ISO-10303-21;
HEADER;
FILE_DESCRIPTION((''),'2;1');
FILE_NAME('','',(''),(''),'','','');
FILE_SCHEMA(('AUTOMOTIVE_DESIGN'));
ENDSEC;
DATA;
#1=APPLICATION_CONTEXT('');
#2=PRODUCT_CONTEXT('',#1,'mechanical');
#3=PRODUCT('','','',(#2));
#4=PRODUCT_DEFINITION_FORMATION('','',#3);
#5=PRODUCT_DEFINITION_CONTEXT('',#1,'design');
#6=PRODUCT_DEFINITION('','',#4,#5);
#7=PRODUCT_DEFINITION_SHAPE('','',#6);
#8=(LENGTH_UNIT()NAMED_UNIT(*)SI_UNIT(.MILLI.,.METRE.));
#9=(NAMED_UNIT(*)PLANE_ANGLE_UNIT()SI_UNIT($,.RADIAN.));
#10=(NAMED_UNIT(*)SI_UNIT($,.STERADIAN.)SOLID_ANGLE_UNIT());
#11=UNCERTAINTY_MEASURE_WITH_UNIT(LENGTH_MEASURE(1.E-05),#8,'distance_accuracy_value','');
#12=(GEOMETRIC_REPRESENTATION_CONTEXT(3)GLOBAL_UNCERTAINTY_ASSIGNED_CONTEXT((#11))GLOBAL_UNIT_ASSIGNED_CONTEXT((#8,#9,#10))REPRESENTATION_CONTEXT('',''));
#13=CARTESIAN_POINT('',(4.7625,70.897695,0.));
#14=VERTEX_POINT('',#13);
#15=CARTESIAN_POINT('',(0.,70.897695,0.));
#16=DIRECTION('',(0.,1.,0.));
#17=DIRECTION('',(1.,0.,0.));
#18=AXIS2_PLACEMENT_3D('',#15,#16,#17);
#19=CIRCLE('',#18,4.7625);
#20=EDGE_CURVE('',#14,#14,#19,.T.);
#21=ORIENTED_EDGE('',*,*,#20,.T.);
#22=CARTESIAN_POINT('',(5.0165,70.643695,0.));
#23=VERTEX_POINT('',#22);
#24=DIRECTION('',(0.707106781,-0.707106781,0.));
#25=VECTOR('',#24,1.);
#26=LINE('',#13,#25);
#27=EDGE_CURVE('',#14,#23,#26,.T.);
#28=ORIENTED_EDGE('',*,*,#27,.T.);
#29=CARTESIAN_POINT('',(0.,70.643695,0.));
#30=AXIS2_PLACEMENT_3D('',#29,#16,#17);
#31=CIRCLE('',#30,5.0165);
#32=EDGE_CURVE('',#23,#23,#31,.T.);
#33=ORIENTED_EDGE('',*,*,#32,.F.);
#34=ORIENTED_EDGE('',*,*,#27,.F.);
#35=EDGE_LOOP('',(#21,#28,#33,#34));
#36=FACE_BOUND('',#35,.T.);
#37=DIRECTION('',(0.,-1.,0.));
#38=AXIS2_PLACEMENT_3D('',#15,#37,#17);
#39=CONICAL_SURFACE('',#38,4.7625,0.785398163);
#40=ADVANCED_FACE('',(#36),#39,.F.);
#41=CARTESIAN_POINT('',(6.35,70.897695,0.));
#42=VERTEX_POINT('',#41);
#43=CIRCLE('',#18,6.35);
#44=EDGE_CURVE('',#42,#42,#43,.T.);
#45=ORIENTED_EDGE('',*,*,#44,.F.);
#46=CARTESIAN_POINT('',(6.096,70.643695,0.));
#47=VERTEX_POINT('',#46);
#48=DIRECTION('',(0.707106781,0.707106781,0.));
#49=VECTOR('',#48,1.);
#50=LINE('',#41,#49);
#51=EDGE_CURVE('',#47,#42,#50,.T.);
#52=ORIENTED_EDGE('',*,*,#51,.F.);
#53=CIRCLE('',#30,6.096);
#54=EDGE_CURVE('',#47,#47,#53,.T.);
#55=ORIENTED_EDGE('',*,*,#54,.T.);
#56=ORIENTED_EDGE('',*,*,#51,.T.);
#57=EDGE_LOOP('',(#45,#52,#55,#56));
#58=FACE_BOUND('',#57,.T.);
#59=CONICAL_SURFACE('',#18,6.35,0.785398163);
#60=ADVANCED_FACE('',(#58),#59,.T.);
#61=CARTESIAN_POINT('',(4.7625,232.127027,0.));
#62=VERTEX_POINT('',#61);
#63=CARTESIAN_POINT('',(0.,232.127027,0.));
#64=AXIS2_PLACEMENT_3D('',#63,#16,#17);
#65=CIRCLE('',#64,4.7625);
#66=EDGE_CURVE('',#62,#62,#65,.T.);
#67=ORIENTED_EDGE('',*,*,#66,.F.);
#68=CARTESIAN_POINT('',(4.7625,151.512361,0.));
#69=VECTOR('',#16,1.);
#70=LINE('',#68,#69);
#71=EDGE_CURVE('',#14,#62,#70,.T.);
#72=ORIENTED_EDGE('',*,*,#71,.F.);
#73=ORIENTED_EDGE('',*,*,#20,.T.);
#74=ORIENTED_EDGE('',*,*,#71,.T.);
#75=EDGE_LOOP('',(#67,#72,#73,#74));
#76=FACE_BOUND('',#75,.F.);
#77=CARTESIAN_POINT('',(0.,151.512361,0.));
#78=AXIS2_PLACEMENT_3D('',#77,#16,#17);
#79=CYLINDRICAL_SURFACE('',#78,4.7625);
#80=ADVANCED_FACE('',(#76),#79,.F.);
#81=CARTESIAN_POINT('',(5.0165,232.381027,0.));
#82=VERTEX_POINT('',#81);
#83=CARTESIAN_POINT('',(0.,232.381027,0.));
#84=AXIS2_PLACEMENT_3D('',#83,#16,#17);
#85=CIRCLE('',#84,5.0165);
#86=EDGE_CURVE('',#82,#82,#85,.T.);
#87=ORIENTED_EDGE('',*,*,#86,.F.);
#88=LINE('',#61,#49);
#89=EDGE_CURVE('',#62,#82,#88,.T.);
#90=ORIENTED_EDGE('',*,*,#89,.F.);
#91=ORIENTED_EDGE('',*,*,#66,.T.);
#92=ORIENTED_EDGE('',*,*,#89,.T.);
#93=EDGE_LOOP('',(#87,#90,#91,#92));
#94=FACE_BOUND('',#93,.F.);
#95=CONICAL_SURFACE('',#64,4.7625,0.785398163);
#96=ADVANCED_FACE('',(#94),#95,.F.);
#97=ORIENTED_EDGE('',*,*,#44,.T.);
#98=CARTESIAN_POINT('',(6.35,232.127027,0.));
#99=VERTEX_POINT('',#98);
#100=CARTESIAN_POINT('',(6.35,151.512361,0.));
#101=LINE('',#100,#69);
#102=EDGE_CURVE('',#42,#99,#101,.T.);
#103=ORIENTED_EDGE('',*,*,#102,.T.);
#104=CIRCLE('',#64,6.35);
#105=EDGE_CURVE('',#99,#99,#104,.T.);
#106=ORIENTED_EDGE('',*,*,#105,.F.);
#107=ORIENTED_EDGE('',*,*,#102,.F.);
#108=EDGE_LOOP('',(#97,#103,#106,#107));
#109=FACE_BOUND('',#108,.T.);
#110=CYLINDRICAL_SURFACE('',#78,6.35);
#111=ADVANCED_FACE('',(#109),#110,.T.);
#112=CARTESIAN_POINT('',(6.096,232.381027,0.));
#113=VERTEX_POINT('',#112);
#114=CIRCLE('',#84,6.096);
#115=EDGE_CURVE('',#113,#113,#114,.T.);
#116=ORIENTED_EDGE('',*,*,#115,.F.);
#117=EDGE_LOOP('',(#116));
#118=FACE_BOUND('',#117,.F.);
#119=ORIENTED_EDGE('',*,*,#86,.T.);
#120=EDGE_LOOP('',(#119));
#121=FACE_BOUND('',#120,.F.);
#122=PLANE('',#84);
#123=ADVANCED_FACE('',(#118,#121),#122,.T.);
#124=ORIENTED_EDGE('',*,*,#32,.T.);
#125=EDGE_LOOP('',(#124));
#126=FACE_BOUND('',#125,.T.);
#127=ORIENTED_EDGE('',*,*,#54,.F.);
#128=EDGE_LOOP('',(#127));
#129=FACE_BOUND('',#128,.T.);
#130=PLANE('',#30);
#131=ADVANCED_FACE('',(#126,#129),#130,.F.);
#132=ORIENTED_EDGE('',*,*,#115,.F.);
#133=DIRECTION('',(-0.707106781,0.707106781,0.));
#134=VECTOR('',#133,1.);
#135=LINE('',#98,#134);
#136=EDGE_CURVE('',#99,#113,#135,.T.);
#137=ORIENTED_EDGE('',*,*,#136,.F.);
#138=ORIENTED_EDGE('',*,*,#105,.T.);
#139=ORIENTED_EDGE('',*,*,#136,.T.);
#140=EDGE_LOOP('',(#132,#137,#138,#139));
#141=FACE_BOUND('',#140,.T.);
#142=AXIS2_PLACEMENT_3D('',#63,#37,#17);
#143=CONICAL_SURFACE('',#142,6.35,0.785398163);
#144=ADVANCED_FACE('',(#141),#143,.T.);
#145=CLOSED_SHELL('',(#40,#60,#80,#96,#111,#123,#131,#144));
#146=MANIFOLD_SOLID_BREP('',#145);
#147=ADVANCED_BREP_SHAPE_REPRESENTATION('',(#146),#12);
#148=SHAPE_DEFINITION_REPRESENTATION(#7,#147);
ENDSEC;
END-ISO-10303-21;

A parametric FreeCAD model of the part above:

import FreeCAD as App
import Part
import Sketcher
Q = App.Units.Quantity


def edges_at(feature, points):
    """Names of the edges that pass closest to the given points."""
    edges = feature.Shape.Edges
    near = lambda p: min(range(len(edges)), key=lambda i: edges[i].distToShape(Part.Vertex(*p))[0])
    return sorted({f"Edge{near(p) + 1}" for p in points})


def add_polygon(sketch, points):
    """Adds a closed chain of lines whose ends are joined by coincident constraints."""
    first, n = sketch.GeometryCount, len(points)
    for a, b in zip(points, points[1:] + points[:1]):
        sketch.addGeometry(Part.LineSegment(App.Vector(*a, 0), App.Vector(*b, 0)), False)
    for i in range(n):
        sketch.addConstraint(Sketcher.Constraint("Coincident", first + i, 2, first + (i + 1) % n, 1))

doc = App.newDocument("Part")
params = doc.addObject("Spreadsheet::Sheet", "Params")
for row, (alias, value) in enumerate([
    ("sketch1_width", "0.0625 in"),
    ("revolution_angle", "360 deg"),
    ("chamfer_size", "0.01 in"),
], start=1):
    params.set(f"A{row}", alias)
    params.set(f"B{row}", "=" + value)
    params.setAlias(f"B{row}", alias)

body = doc.addObject("PartDesign::Body", "Body")

# Sketch on XY plane
sketch1 = body.newObject("Sketcher::SketchObject", "Sketch")
sketch1.AttachmentSupport = (doc.getObject("XY_Plane"), [""])
sketch1.MapMode = "FlatFace"
add_polygon(sketch1, [(4.8, 232.4), (4.8, 70.6), (6.3, 70.6), (6.3, 232.4)])  # lines 0-3
sketch1.addConstraint([
    Sketcher.Constraint("Vertical", 0),
    Sketcher.Constraint("Horizontal", 1),
    Sketcher.Constraint("Vertical", 2),
    Sketcher.Constraint("Horizontal", 3),
    Sketcher.Constraint("DistanceX", 1, 1, 1, 2, Q("0.0625 in")),
    Sketcher.Constraint("DistanceX", -1, 1, 1, 2, Q("0.25 in")),
    Sketcher.Constraint("DistanceY", 0, 2, 0, 1, 161.737332),
    Sketcher.Constraint("DistanceY", -1, 1, 0, 2, 70.643695),
])
sketch1.setExpression("Constraints[8]", "Params.sketch1_width")
revolution = body.newObject("PartDesign::Revolution", "Revolution")
revolution.Profile = sketch1
revolution.ReferenceAxis = (sketch1, ["V_Axis"])
revolution.setExpression("Angle", "Params.revolution_angle")
doc.recompute()

chamfer = body.newObject("PartDesign::Chamfer", "Chamfer")
chamfer.Base = (revolution, edges_at(revolution, [
    (-6.35, 70.644, 0),
    (-6.35, 232.381, 0),
    (-4.763, 232.381, 0),
    (-4.763, 70.644, 0),
]))
chamfer.setExpression("Size", "Params.chamfer_size")

doc.recompute()
